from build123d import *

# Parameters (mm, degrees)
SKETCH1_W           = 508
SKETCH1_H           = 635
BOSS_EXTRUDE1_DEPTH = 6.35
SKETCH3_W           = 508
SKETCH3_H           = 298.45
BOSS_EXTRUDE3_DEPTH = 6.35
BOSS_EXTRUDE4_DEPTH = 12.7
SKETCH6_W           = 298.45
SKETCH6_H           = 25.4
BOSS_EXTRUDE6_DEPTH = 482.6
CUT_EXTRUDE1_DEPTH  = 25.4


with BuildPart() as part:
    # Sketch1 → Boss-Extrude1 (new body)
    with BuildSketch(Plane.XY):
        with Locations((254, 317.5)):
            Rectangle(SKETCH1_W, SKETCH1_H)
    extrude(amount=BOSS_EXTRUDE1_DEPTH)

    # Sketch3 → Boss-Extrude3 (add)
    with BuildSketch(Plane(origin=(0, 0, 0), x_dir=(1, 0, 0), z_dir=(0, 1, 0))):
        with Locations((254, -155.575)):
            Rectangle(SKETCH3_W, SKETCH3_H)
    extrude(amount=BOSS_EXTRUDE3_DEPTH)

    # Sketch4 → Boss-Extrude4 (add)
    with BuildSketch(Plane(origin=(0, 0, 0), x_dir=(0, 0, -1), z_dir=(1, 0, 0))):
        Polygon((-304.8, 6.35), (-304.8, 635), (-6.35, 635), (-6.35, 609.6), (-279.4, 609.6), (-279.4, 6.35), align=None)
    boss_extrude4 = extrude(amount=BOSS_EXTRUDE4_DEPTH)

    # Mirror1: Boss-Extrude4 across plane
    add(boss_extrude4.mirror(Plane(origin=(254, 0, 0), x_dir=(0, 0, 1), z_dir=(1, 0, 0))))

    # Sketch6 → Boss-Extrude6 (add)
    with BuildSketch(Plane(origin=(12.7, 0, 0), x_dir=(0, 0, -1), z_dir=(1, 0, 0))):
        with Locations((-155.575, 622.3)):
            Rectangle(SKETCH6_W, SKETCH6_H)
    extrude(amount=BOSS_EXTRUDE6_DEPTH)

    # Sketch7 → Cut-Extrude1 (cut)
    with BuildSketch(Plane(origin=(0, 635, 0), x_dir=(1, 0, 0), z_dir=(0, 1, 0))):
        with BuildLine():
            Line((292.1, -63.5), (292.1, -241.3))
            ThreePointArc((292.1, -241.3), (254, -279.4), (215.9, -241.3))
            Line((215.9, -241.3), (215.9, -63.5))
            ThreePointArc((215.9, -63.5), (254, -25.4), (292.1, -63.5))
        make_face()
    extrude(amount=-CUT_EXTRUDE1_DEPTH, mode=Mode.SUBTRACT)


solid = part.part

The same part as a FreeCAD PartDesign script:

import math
import FreeCAD as App
import Part
import Sketcher
from FreeCAD import Vector
Q = App.Units.Quantity


def add_polygon(sketch, points):
    """Adds a closed chain of lines whose ends are joined by coincident constraints."""
    first, n = sketch.GeometryCount, len(points)
    for a, b in zip(points, points[1:] + points[:1]):
        sketch.addGeometry(Part.LineSegment(App.Vector(*a, 0), App.Vector(*b, 0)), False)
    for i in range(n):
        sketch.addConstraint(Sketcher.Constraint("Coincident", first + i, 2, first + (i + 1) % n, 1))

doc = App.newDocument("Part")
body = doc.addObject("PartDesign::Body", "Body")

sketch1 = body.newObject("Sketcher::SketchObject", "Sketch")
sketch1.AttachmentSupport = (doc.getObject("XY_Plane"), [""])
sketch1.MapMode = "FlatFace"
add_polygon(sketch1, [(0, 635), (0, 0), (508, 0), (508, 635)])
sketch1.addConstraint([
    Sketcher.Constraint("Vertical", 0),
    Sketcher.Constraint("Horizontal", 1),
    Sketcher.Constraint("Vertical", 2),
    Sketcher.Constraint("Horizontal", 3),
    Sketcher.Constraint("Coincident", 0, 2, -1, 1),
    Sketcher.Constraint("DistanceX", 1, 1, 1, 2, Q("20 in")),
    Sketcher.Constraint("DistanceY", 0, 2, 0, 1, Q("25 in")),
])
pad1 = body.newObject("PartDesign::Pad", "Pad")
pad1.Profile = sketch1
pad1.Length = Q("0.25 in")

sketch2 = body.newObject("Sketcher::SketchObject", "Sketch001")
sketch2.AttachmentSupport = (doc.getObject("XZ_Plane"), [""])
sketch2.MapMode = "FlatFace"
add_polygon(sketch2, [(0, 6), (0, 305), (508, 305), (508, 6)])
sketch2.addConstraint([
    Sketcher.Constraint("Vertical", 0),
    Sketcher.Constraint("Horizontal", 1),
    Sketcher.Constraint("Vertical", 2),
    Sketcher.Constraint("Horizontal", 3),
    Sketcher.Constraint("PointOnObject", 0, 2, -2),
    Sketcher.Constraint("DistanceX", 1, 1, 1, 2, Q("20 in")),
    Sketcher.Constraint("DistanceY", -1, 1, 0, 2, Q("12 in")),
    Sketcher.Constraint("DistanceY", 0, 1, 0, 2, Q("11.75 in")),
])
pad2 = body.newObject("PartDesign::Pad", "Pad001")
pad2.Profile = sketch2
pad2.Length = Q("0.25 in")
pad2.Reversed = True

sketch3 = body.newObject("Sketcher::SketchObject", "Sketch002")
sketch3.AttachmentSupport = (doc.getObject("YZ_Plane"), [""])
sketch3.MapMode = "FlatFace"
add_polygon(sketch3, [(635, 305), (6, 305), (6, 279), (610, 279), (610, 6), (635, 6)])
sketch3.addConstraint([
    Sketcher.Constraint("Horizontal", 0),
    Sketcher.Constraint("Vertical", 1),
    Sketcher.Constraint("Horizontal", 2),
    Sketcher.Constraint("Vertical", 3),
    Sketcher.Constraint("Horizontal", 4),
    Sketcher.Constraint("Vertical", 5),
    Sketcher.Constraint("Equal", 4, 1),
    Sketcher.Constraint("DistanceX", 4, 1, 4, 2, Q("1 in")),
    Sketcher.Constraint("DistanceY", -1, 1, 0, 2, Q("12 in")),
    Sketcher.Constraint("DistanceX", -1, 1, 2, 2, Q("24 in")),
    Sketcher.Constraint("DistanceX", 0, 2, 0, 1, Q("24.75 in")),
    Sketcher.Constraint("DistanceY", 3, 2, 3, 1, Q("10.75 in")),
])
pad3 = body.newObject("PartDesign::Pad", "Pad002")
pad3.Profile = sketch3
pad3.Length = Q("0.5 in")
doc.recompute()

datumplane = body.newObject("PartDesign::Plane", "DatumPlane")
datumplane.AttachmentSupport = (doc.getObject("YZ_Plane"), [""])
datumplane.MapMode = "FlatFace"
datumplane.AttachmentOffset = App.Placement(Vector(0, 0, 10 * 25.4), App.Rotation())
mirrored = body.newObject("PartDesign::Mirrored", "Mirrored")
mirrored.Originals = [pad3]
mirrored.MirrorPlane = (datumplane, [""])
body.Tip = mirrored

sketch4 = body.newObject("Sketcher::SketchObject", "Sketch003")
sketch4.AttachmentSupport = (doc.getObject("YZ_Plane"), [""])
sketch4.MapMode = "FlatFace"
sketch4.AttachmentOffset = App.Placement(Vector(0, 0, 0.5 * 25.4), App.Rotation())
add_polygon(sketch4, [(635, 305), (610, 305), (610, 6), (635, 6)])
sketch4.addConstraint([
    Sketcher.Constraint("Horizontal", 0),
    Sketcher.Constraint("Vertical", 1),
    Sketcher.Constraint("Horizontal", 2),
    Sketcher.Constraint("Vertical", 3),
    Sketcher.Constraint("DistanceX", 0, 2, 0, 1, Q("1 in")),
    Sketcher.Constraint("DistanceX", -1, 1, 0, 2, Q("24 in")),
    Sketcher.Constraint("DistanceY", -1, 1, 0, 2, Q("12 in")),
    Sketcher.Constraint("DistanceY", 1, 2, 1, 1, Q("11.75 in")),
])
pad4 = body.newObject("PartDesign::Pad", "Pad003")
pad4.Profile = sketch4
pad4.Length = Q("19 in")

sketch5 = body.newObject("Sketcher::SketchObject", "Sketch004")
sketch5.AttachmentSupport = (doc.getObject("XZ_Plane"), [""])
sketch5.MapMode = "FlatFace"
sketch5.AttachmentOffset = App.Placement(Vector(0, 0, -25 * 25.4), App.Rotation())
sketch5.addGeometry([
    Part.LineSegment(Vector(292, 241, 0), Vector(292, 64, 0)),
    Part.ArcOfCircle(Part.Circle(Vector(254, 64, 0), Vector(0, 0, 1), 38), math.radians(180), math.radians(360)),
    Part.LineSegment(Vector(216, 64, 0), Vector(216, 241, 0)),
    Part.ArcOfCircle(Part.Circle(Vector(254, 241, 0), Vector(0, 0, 1), 38), math.radians(0), math.radians(180)),
], False)
sketch5.addConstraint([
    Sketcher.Constraint("Tangent", 0, 2, 1, 2),
    Sketcher.Constraint("Tangent", 1, 1, 2, 1),
    Sketcher.Constraint("Tangent", 2, 2, 3, 2),
    Sketcher.Constraint("Tangent", 3, 1, 0, 1),
    Sketcher.Constraint("Vertical", 0),
    Sketcher.Constraint("Vertical", 2),
    Sketcher.Constraint("Radius", 1, Q("1.5 in")),
    Sketcher.Constraint("DistanceY", 0, 2, 0, 1, Q("7 in")),
    Sketcher.Constraint("DistanceX", -1, 1, 1, 3, Q("10 in")),
    Sketcher.Constraint("DistanceY", -1, 1, 1, 3, Q("2.5 in")),
])
pocket1 = body.newObject("PartDesign::Pocket", "Pocket")
pocket1.Profile = sketch5
pocket1.Length = Q("1 in")
pocket1.Reversed = True

doc.recompute()
